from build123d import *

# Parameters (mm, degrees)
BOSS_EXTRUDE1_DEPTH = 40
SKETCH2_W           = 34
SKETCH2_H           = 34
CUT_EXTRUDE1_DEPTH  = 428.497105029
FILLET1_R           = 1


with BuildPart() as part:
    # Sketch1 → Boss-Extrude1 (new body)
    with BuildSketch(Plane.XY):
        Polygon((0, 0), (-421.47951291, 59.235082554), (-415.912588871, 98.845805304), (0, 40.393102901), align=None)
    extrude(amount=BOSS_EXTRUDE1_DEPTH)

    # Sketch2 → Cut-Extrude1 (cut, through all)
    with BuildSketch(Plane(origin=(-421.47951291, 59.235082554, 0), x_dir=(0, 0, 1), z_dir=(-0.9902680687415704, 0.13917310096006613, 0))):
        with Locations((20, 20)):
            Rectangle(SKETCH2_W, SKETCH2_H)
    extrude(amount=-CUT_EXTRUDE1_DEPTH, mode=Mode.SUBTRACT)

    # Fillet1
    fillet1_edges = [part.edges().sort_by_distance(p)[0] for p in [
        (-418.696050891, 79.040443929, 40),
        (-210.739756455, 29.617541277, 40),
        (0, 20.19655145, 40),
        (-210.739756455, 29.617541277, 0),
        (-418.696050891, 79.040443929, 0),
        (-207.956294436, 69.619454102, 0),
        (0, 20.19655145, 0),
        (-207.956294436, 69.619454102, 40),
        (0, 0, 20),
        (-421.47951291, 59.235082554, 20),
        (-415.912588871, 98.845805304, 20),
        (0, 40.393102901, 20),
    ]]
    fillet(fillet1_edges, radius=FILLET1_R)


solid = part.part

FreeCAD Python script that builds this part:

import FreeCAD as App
import Part
import Sketcher
from FreeCAD import Vector
Q = App.Units.Quantity


def edges_at(feature, points):
    """Names of the edges that pass closest to the given points."""
    edges = feature.Shape.Edges
    near = lambda p: min(range(len(edges)), key=lambda i: edges[i].distToShape(Part.Vertex(*p))[0])
    return sorted({f"Edge{near(p) + 1}" for p in points})


def add_polygon(sketch, points):
    """Adds a closed chain of lines whose ends are joined by coincident constraints."""
    first, n = sketch.GeometryCount, len(points)
    for a, b in zip(points, points[1:] + points[:1]):
        sketch.addGeometry(Part.LineSegment(App.Vector(*a, 0), App.Vector(*b, 0)), False)
    for i in range(n):
        sketch.addConstraint(Sketcher.Constraint("Coincident", first + i, 2, first + (i + 1) % n, 1))

doc = App.newDocument("Part")
body = doc.addObject("PartDesign::Body", "Body")

# Sketch on XY plane
sketch1 = body.newObject("Sketcher::SketchObject", "Sketch")
sketch1.AttachmentSupport = (doc.getObject("XY_Plane"), [""])
sketch1.MapMode = "FlatFace"
add_polygon(sketch1, [(-421.479513, 59.235083), (0, 0), (0, 40.393103), (-415.912589, 98.845805)])  # lines 0-3
sketch1.addConstraint(Sketcher.Constraint("Vertical", 1))
sketch1.addConstraint(Sketcher.Constraint("Coincident", 0, 2, -1, 1))
sketch1.addConstraint(Sketcher.Constraint("Parallel", 0, 2))
sketch1.addConstraint(Sketcher.Constraint("Perpendicular", 2, 3))
sketch1.addConstraint(Sketcher.Constraint("Angle", 0, Q("-8 deg")))
sketch1.addConstraint(Sketcher.Constraint("Distance", 2, Q("420 mm")))
sketch1.addConstraint(Sketcher.Constraint("Distance", 3, Q("40 mm")))
pad1 = body.newObject("PartDesign::Pad", "Pad")
pad1.Profile = sketch1
pad1.Length = 40

# Sketch on an angled plane
sketch2 = body.newObject("Sketcher::SketchObject", "Sketch001")
sketch2.Placement = App.Placement(Vector(-421.479513, 59.235083, 0), App.Rotation(Vector(0, 0, 1), Vector(0.139173101, 0.990268069, 0), Vector(-0.990268069, 0.139173101, 0), "ZXY"))
add_polygon(sketch2, [(3, 37), (3, 3), (37, 3), (37, 37)])  # lines 0-3
sketch2.addConstraint(Sketcher.Constraint("Vertical", 0))
sketch2.addConstraint(Sketcher.Constraint("Horizontal", 1))
sketch2.addConstraint(Sketcher.Constraint("Vertical", 2))
sketch2.addConstraint(Sketcher.Constraint("Horizontal", 3))
sketch2.addConstraint(Sketcher.Constraint("Equal", 3, 0))
sketch2.addConstraint(Sketcher.Constraint("DistanceX", 1, 1, 1, 2, Q("34 mm")))
sketch2.addConstraint(Sketcher.Constraint("DistanceX", -1, 1, 0, 2, Q("3 mm")))
sketch2.addConstraint(Sketcher.Constraint("DistanceY", -1, 1, 0, 2, Q("3 mm")))
pocket1 = body.newObject("PartDesign::Pocket", "Pocket")
pocket1.Profile = sketch2
pocket1.Type = "ThroughAll"
doc.recompute()

fillet = body.newObject("PartDesign::Fillet", "Fillet")
fillet.Base = (pocket1, edges_at(pocket1, [
    (-418.696, 79.04, 40),
    (-210.74, 29.618, 40),
    (0, 20.197, 40),
    (-210.74, 29.618, 0),
    (-418.696, 79.04, 0),
    (-207.956, 69.619, 0),
    (0, 20.197, 0),
    (-207.956, 69.619, 40),
    (0, 0, 20),
    (-421.48, 59.235, 20),
    (-415.913, 98.846, 20),
    (0, 40.393, 20),
]))
fillet.Radius = 1

doc.recompute()
